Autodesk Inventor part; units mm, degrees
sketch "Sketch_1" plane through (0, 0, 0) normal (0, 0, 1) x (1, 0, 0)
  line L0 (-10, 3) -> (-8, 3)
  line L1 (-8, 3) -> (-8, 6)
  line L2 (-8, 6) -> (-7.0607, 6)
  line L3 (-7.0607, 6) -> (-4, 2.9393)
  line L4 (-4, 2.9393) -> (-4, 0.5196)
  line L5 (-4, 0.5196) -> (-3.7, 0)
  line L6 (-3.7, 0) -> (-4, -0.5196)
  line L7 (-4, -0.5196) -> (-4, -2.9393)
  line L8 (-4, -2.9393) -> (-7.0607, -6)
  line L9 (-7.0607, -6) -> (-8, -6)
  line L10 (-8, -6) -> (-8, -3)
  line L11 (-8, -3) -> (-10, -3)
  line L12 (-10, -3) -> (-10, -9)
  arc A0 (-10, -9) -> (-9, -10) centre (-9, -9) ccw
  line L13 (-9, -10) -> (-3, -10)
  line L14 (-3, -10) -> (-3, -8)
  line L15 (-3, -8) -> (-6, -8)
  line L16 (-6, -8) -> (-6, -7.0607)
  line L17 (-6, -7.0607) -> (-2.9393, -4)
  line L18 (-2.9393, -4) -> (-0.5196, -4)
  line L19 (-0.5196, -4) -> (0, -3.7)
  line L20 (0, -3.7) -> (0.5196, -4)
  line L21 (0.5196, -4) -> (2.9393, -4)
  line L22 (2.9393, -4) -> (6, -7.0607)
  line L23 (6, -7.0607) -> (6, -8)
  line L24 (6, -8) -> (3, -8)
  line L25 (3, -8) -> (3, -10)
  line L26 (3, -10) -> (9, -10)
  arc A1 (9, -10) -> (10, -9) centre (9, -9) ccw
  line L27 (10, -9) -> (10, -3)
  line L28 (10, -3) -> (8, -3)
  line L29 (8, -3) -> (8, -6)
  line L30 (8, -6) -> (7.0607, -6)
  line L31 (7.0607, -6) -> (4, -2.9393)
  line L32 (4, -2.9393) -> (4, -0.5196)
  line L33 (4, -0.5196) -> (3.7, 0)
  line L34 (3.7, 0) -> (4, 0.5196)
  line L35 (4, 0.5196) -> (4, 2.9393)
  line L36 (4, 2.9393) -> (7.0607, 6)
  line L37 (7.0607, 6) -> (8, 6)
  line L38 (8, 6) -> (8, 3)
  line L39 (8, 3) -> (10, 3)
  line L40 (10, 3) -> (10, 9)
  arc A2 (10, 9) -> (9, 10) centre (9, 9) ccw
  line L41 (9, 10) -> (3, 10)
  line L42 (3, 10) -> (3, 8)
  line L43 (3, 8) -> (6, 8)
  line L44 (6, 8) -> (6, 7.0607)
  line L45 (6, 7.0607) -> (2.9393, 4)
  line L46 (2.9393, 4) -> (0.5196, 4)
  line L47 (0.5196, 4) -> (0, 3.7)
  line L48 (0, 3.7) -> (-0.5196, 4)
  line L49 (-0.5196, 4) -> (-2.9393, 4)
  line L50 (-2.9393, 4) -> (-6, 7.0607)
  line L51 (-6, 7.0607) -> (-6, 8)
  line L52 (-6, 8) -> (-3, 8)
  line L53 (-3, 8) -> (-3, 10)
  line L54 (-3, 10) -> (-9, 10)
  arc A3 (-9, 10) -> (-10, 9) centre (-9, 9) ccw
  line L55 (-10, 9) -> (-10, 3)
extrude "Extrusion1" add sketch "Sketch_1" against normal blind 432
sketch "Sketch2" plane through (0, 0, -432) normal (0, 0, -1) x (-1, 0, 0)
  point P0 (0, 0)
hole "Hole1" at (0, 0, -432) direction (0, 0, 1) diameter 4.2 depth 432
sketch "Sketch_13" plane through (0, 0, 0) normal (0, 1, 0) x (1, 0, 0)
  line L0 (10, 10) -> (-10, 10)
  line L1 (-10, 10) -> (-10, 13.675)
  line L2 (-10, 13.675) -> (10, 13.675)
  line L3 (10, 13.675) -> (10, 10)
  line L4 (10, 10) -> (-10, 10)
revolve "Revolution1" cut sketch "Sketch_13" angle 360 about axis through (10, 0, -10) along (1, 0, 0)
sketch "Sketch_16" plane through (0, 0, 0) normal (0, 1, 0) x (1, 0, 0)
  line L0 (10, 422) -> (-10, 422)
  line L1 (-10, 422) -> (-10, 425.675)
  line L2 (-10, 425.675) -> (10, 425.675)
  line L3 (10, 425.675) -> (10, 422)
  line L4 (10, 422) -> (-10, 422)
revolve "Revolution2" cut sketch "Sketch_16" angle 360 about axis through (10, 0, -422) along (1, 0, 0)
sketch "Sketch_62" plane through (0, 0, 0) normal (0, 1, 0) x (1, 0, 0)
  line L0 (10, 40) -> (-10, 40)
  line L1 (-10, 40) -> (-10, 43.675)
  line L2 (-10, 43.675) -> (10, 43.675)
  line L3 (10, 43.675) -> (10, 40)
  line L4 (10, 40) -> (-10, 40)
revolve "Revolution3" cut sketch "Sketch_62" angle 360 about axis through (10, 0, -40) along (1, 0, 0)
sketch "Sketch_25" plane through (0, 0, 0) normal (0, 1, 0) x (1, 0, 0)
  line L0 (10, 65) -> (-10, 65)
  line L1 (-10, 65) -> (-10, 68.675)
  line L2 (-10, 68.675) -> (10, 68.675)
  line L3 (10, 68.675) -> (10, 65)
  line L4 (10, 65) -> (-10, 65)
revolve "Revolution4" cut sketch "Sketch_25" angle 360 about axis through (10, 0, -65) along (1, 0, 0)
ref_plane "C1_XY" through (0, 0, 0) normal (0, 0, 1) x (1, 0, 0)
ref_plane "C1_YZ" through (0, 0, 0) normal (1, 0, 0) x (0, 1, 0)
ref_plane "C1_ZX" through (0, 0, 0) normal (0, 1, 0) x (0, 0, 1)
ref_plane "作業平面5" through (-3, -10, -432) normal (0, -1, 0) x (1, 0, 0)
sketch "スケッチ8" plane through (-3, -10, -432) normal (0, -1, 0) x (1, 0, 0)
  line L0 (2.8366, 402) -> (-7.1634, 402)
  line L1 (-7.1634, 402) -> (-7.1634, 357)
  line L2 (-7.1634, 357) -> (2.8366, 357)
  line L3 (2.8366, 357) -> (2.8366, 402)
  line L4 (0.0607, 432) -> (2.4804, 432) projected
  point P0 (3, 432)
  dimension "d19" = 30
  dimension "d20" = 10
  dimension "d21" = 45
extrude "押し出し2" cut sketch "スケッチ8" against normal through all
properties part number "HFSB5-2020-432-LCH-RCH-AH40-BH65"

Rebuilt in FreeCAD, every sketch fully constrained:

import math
import FreeCAD as App
import Part
import Sketcher
Q = App.Units.Quantity


def add_polygon(sketch, points):
    """Adds a closed chain of lines whose ends are joined by coincident constraints."""
    first, n = sketch.GeometryCount, len(points)
    for a, b in zip(points, points[1:] + points[:1]):
        sketch.addGeometry(Part.LineSegment(App.Vector(*a, 0), App.Vector(*b, 0)), False)
    for i in range(n):
        sketch.addConstraint(Sketcher.Constraint("Coincident", first + i, 2, first + (i + 1) % n, 1))

doc = App.newDocument("Part")
body = doc.addObject("PartDesign::Body", "Body")

sketch1 = body.newObject("Sketcher::SketchObject", "Sketch")
sketch1.AttachmentSupport = (doc.getObject("XY_Plane"), [""])
sketch1.MapMode = "FlatFace"
sketch1.addGeometry([
    Part.LineSegment(App.Vector(-10, 9, 0), App.Vector(-10, 3, 0)),
    Part.LineSegment(App.Vector(-10, 3, 0), App.Vector(-8, 3, 0)),
    Part.LineSegment(App.Vector(-8, 3, 0), App.Vector(-8, 6, 0)),
    Part.LineSegment(App.Vector(-8, 6, 0), App.Vector(-7.1, 6, 0)),
    Part.LineSegment(App.Vector(-7.1, 6, 0), App.Vector(-4, 2.9, 0)),
    Part.LineSegment(App.Vector(-4, 2.9, 0), App.Vector(-4, 0.5, 0)),
    Part.LineSegment(App.Vector(-4, 0.5, 0), App.Vector(-3.7, 0, 0)),
    Part.LineSegment(App.Vector(-3.7, 0, 0), App.Vector(-4, -0.5, 0)),
    Part.LineSegment(App.Vector(-4, -0.5, 0), App.Vector(-4, -2.9, 0)),
    Part.LineSegment(App.Vector(-4, -2.9, 0), App.Vector(-7.1, -6, 0)),
    Part.LineSegment(App.Vector(-7.1, -6, 0), App.Vector(-8, -6, 0)),
    Part.LineSegment(App.Vector(-8, -6, 0), App.Vector(-8, -3, 0)),
    Part.LineSegment(App.Vector(-8, -3, 0), App.Vector(-10, -3, 0)),
    Part.LineSegment(App.Vector(-10, -3, 0), App.Vector(-10, -9, 0)),
    Part.ArcOfCircle(Part.Circle(App.Vector(-9, -9, 0), App.Vector(0, 0, 1), 1), math.radians(180), math.radians(270)),
    Part.LineSegment(App.Vector(-9, -10, 0), App.Vector(-3, -10, 0)),
    Part.LineSegment(App.Vector(-3, -10, 0), App.Vector(-3, -8, 0)),
    Part.LineSegment(App.Vector(-3, -8, 0), App.Vector(-6, -8, 0)),
    Part.LineSegment(App.Vector(-6, -8, 0), App.Vector(-6, -7.1, 0)),
    Part.LineSegment(App.Vector(-6, -7.1, 0), App.Vector(-2.9, -4, 0)),
    Part.LineSegment(App.Vector(-2.9, -4, 0), App.Vector(-0.5, -4, 0)),
    Part.LineSegment(App.Vector(-0.5, -4, 0), App.Vector(0, -3.7, 0)),
    Part.LineSegment(App.Vector(0, -3.7, 0), App.Vector(0.5, -4, 0)),
    Part.LineSegment(App.Vector(0.5, -4, 0), App.Vector(2.9, -4, 0)),
    Part.LineSegment(App.Vector(2.9, -4, 0), App.Vector(6, -7.1, 0)),
    Part.LineSegment(App.Vector(6, -7.1, 0), App.Vector(6, -8, 0)),
    Part.LineSegment(App.Vector(6, -8, 0), App.Vector(3, -8, 0)),
    Part.LineSegment(App.Vector(3, -8, 0), App.Vector(3, -10, 0)),
    Part.LineSegment(App.Vector(3, -10, 0), App.Vector(9, -10, 0)),
    Part.ArcOfCircle(Part.Circle(App.Vector(9, -9, 0), App.Vector(0, 0, 1), 1), math.radians(-90), math.radians(0)),
    Part.LineSegment(App.Vector(10, -9, 0), App.Vector(10, -3, 0)),
    Part.LineSegment(App.Vector(10, -3, 0), App.Vector(8, -3, 0)),
    Part.LineSegment(App.Vector(8, -3, 0), App.Vector(8, -6, 0)),
    Part.LineSegment(App.Vector(8, -6, 0), App.Vector(7.1, -6, 0)),
    Part.LineSegment(App.Vector(7.1, -6, 0), App.Vector(4, -2.9, 0)),
    Part.LineSegment(App.Vector(4, -2.9, 0), App.Vector(4, -0.5, 0)),
    Part.LineSegment(App.Vector(4, -0.5, 0), App.Vector(3.7, 0, 0)),
    Part.LineSegment(App.Vector(3.7, 0, 0), App.Vector(4, 0.5, 0)),
    Part.LineSegment(App.Vector(4, 0.5, 0), App.Vector(4, 2.9, 0)),
    Part.LineSegment(App.Vector(4, 2.9, 0), App.Vector(7.1, 6, 0)),
    Part.LineSegment(App.Vector(7.1, 6, 0), App.Vector(8, 6, 0)),
    Part.LineSegment(App.Vector(8, 6, 0), App.Vector(8, 3, 0)),
    Part.LineSegment(App.Vector(8, 3, 0), App.Vector(10, 3, 0)),
    Part.LineSegment(App.Vector(10, 3, 0), App.Vector(10, 9, 0)),
    Part.ArcOfCircle(Part.Circle(App.Vector(9, 9, 0), App.Vector(0, 0, 1), 1), math.radians(0), math.radians(90)),
    Part.LineSegment(App.Vector(9, 10, 0), App.Vector(3, 10, 0)),
    Part.LineSegment(App.Vector(3, 10, 0), App.Vector(3, 8, 0)),
    Part.LineSegment(App.Vector(3, 8, 0), App.Vector(6, 8, 0)),
    Part.LineSegment(App.Vector(6, 8, 0), App.Vector(6, 7.1, 0)),
    Part.LineSegment(App.Vector(6, 7.1, 0), App.Vector(2.9, 4, 0)),
    Part.LineSegment(App.Vector(2.9, 4, 0), App.Vector(0.5, 4, 0)),
    Part.LineSegment(App.Vector(0.5, 4, 0), App.Vector(0, 3.7, 0)),
    Part.LineSegment(App.Vector(0, 3.7, 0), App.Vector(-0.5, 4, 0)),
    Part.LineSegment(App.Vector(-0.5, 4, 0), App.Vector(-2.9, 4, 0)),
    Part.LineSegment(App.Vector(-2.9, 4, 0), App.Vector(-6, 7.1, 0)),
    Part.LineSegment(App.Vector(-6, 7.1, 0), App.Vector(-6, 8, 0)),
    Part.LineSegment(App.Vector(-6, 8, 0), App.Vector(-3, 8, 0)),
    Part.LineSegment(App.Vector(-3, 8, 0), App.Vector(-3, 10, 0)),
    Part.LineSegment(App.Vector(-3, 10, 0), App.Vector(-9, 10, 0)),
    Part.ArcOfCircle(Part.Circle(App.Vector(-9, 9, 0), App.Vector(0, 0, 1), 1), math.radians(90), math.radians(180)),
], False)
sketch1.addConstraint([
    Sketcher.Constraint("Coincident", 0, 2, 1, 1),
    Sketcher.Constraint("Coincident", 1, 2, 2, 1),
    Sketcher.Constraint("Coincident", 2, 2, 3, 1),
    Sketcher.Constraint("Coincident", 3, 2, 4, 1),
    Sketcher.Constraint("Coincident", 4, 2, 5, 1),
    Sketcher.Constraint("Coincident", 5, 2, 6, 1),
    Sketcher.Constraint("Coincident", 6, 2, 7, 1),
    Sketcher.Constraint("Coincident", 7, 2, 8, 1),
    Sketcher.Constraint("Coincident", 8, 2, 9, 1),
    Sketcher.Constraint("Coincident", 9, 2, 10, 1),
    Sketcher.Constraint("Coincident", 10, 2, 11, 1),
    Sketcher.Constraint("Coincident", 11, 2, 12, 1),
    Sketcher.Constraint("Coincident", 12, 2, 13, 1),
    Sketcher.Constraint("Tangent", 13, 2, 14, 1),
    Sketcher.Constraint("Tangent", 14, 2, 15, 1),
    Sketcher.Constraint("Coincident", 15, 2, 16, 1),
    Sketcher.Constraint("Coincident", 16, 2, 17, 1),
    Sketcher.Constraint("Coincident", 17, 2, 18, 1),
    Sketcher.Constraint("Coincident", 18, 2, 19, 1),
    Sketcher.Constraint("Coincident", 19, 2, 20, 1),
    Sketcher.Constraint("Coincident", 20, 2, 21, 1),
    Sketcher.Constraint("Coincident", 21, 2, 22, 1),
    Sketcher.Constraint("Coincident", 22, 2, 23, 1),
    Sketcher.Constraint("Coincident", 23, 2, 24, 1),
    Sketcher.Constraint("Coincident", 24, 2, 25, 1),
    Sketcher.Constraint("Coincident", 25, 2, 26, 1),
    Sketcher.Constraint("Coincident", 26, 2, 27, 1),
    Sketcher.Constraint("Coincident", 27, 2, 28, 1),
    Sketcher.Constraint("Tangent", 28, 2, 29, 1),
    Sketcher.Constraint("Tangent", 29, 2, 30, 1),
    Sketcher.Constraint("Coincident", 30, 2, 31, 1),
    Sketcher.Constraint("Coincident", 31, 2, 32, 1),
    Sketcher.Constraint("Coincident", 32, 2, 33, 1),
    Sketcher.Constraint("Coincident", 33, 2, 34, 1),
    Sketcher.Constraint("Coincident", 34, 2, 35, 1),
    Sketcher.Constraint("Coincident", 35, 2, 36, 1),
    Sketcher.Constraint("Coincident", 36, 2, 37, 1),
    Sketcher.Constraint("Coincident", 37, 2, 38, 1),
    Sketcher.Constraint("Coincident", 38, 2, 39, 1),
    Sketcher.Constraint("Coincident", 39, 2, 40, 1),
    Sketcher.Constraint("Coincident", 40, 2, 41, 1),
    Sketcher.Constraint("Coincident", 41, 2, 42, 1),
    Sketcher.Constraint("Coincident", 42, 2, 43, 1),
    Sketcher.Constraint("Tangent", 43, 2, 44, 1),
    Sketcher.Constraint("Tangent", 44, 2, 45, 1),
    Sketcher.Constraint("Coincident", 45, 2, 46, 1),
    Sketcher.Constraint("Coincident", 46, 2, 47, 1),
    Sketcher.Constraint("Coincident", 47, 2, 48, 1),
    Sketcher.Constraint("Coincident", 48, 2, 49, 1),
    Sketcher.Constraint("Coincident", 49, 2, 50, 1),
    Sketcher.Constraint("Coincident", 50, 2, 51, 1),
    Sketcher.Constraint("Coincident", 51, 2, 52, 1),
    Sketcher.Constraint("Coincident", 52, 2, 53, 1),
    Sketcher.Constraint("Coincident", 53, 2, 54, 1),
    Sketcher.Constraint("Coincident", 54, 2, 55, 1),
    Sketcher.Constraint("Coincident", 55, 2, 56, 1),
    Sketcher.Constraint("Coincident", 56, 2, 57, 1),
    Sketcher.Constraint("Coincident", 57, 2, 58, 1),
    Sketcher.Constraint("Tangent", 58, 2, 59, 1),
    Sketcher.Constraint("Tangent", 59, 2, 0, 1),
    Sketcher.Constraint("Vertical", 0),
    Sketcher.Constraint("Horizontal", 1),
    Sketcher.Constraint("Vertical", 2),
    Sketcher.Constraint("Horizontal", 3),
    Sketcher.Constraint("Vertical", 5),
    Sketcher.Constraint("Vertical", 8),
    Sketcher.Constraint("Horizontal", 10),
    Sketcher.Constraint("Vertical", 11),
    Sketcher.Constraint("Horizontal", 12),
    Sketcher.Constraint("Vertical", 13),
    Sketcher.Constraint("Horizontal", 15),
    Sketcher.Constraint("Vertical", 16),
    Sketcher.Constraint("Horizontal", 17),
    Sketcher.Constraint("Vertical", 18),
    Sketcher.Constraint("Horizontal", 20),
    Sketcher.Constraint("Horizontal", 23),
    Sketcher.Constraint("Vertical", 25),
    Sketcher.Constraint("Horizontal", 26),
    Sketcher.Constraint("Vertical", 27),
    Sketcher.Constraint("Horizontal", 28),
    Sketcher.Constraint("Vertical", 30),
    Sketcher.Constraint("Horizontal", 31),
    Sketcher.Constraint("Vertical", 32),
    Sketcher.Constraint("Horizontal", 33),
    Sketcher.Constraint("Vertical", 35),
    Sketcher.Constraint("Vertical", 38),
    Sketcher.Constraint("Horizontal", 40),
    Sketcher.Constraint("Vertical", 41),
    Sketcher.Constraint("Horizontal", 42),
    Sketcher.Constraint("Vertical", 43),
    Sketcher.Constraint("Horizontal", 45),
    Sketcher.Constraint("Vertical", 46),
    Sketcher.Constraint("Horizontal", 47),
    Sketcher.Constraint("Vertical", 48),
    Sketcher.Constraint("Horizontal", 50),
    Sketcher.Constraint("Horizontal", 53),
    Sketcher.Constraint("Vertical", 55),
    Sketcher.Constraint("Horizontal", 56),
    Sketcher.Constraint("Vertical", 57),
    Sketcher.Constraint("Horizontal", 58),
    Sketcher.Constraint("Equal", 14, 29),
    Sketcher.Constraint("Equal", 29, 44),
    Sketcher.Constraint("Equal", 44, 59),
    Sketcher.Constraint("Symmetric", 14, 3, 44, 3, -1, 1),
    Sketcher.Constraint("Symmetric", 29, 3, 59, 3, -1, 1),
    Sketcher.Constraint("Symmetric", 1, 2, 31, 2, -1, 1),
    Sketcher.Constraint("Symmetric", 3, 2, 33, 2, -1, 1),
    Sketcher.Constraint("Symmetric", 4, 2, 34, 2, -1, 1),
    Sketcher.Constraint("Symmetric", 6, 2, 36, 2, -1, 1),
    Sketcher.Constraint("Symmetric", 7, 2, 37, 2, -1, 1),
    Sketcher.Constraint("Symmetric", 9, 2, 39, 2, -1, 1),
    Sketcher.Constraint("Symmetric", 11, 2, 41, 2, -1, 1),
    Sketcher.Constraint("Symmetric", 16, 2, 46, 2, -1, 1),
    Sketcher.Constraint("Symmetric", 18, 2, 48, 2, -1, 1),
    Sketcher.Constraint("Symmetric", 19, 2, 49, 2, -1, 1),
    Sketcher.Constraint("Symmetric", 21, 2, 51, 2, -1, 1),
    Sketcher.Constraint("Symmetric", 22, 2, 52, 2, -1, 1),
    Sketcher.Constraint("Symmetric", 24, 2, 54, 2, -1, 1),
    Sketcher.Constraint("Symmetric", 26, 2, 56, 2, -1, 1),
    Sketcher.Constraint("Symmetric", 14, 3, 29, 3, -2),
    Sketcher.Constraint("Symmetric", 20, 2, 22, 2, -2),
    Sketcher.Constraint("Symmetric", 18, 2, 24, 2, -2),
    Sketcher.Constraint("Symmetric", 16, 2, 26, 2, -2),
    Sketcher.Constraint("Symmetric", 11, 2, 31, 2, -2),
    Sketcher.Constraint("Symmetric", 9, 2, 33, 2, -2),
    Sketcher.Constraint("Symmetric", 8, 2, 34, 2, -2),
    Sketcher.Constraint("PointOnObject", 6, 2, -1),
    Sketcher.Constraint("PointOnObject", 21, 2, -2),
    Sketcher.Constraint("Perpendicular", 4, 9),
    Sketcher.Constraint("Parallel", 9, 19),
    Sketcher.Constraint("Perpendicular", 6, 21),
    Sketcher.Constraint("Perpendicular", 7, 22),
    Sketcher.Constraint("Perpendicular", 19, 24),
    Sketcher.Constraint("Perpendicular", 21, 36),
    Sketcher.Constraint("Perpendicular", 34, 39),
    Sketcher.Constraint("Perpendicular", 36, 51),
    Sketcher.Constraint("Perpendicular", 49, 54),
    Sketcher.Constraint("Equal", 58, 0),
    Sketcher.Constraint("Equal", 56, 2),
    Sketcher.Constraint("Equal", 53, 5),
    Sketcher.Constraint("Equal", 42, 16),
    Sketcher.Constraint("Equal", 40, 18),
    Sketcher.Constraint("Equal", 9, 19),
    Sketcher.Constraint("Equal", 7, 21),
    Sketcher.Constraint("Radius", 14, 1.0),
    Sketcher.Constraint("DistanceX", 1, 1, 1, 2, 2.0),
    Sketcher.Constraint("DistanceX", 15, 1, 15, 2, 6.0),
    Sketcher.Constraint("DistanceX", 17, 2, 17, 1, 3.0),
    Sketcher.Constraint("Angle", 6, Q("-59.9993 deg")),
    Sketcher.Constraint("DistanceX", 14, 3, -1, 1, 9.0),
    Sketcher.Constraint("DistanceX", 4, 2, -1, 1, 4.0),
    Sketcher.Constraint("Distance", 6, 0.6),
    Sketcher.Constraint("DistanceX", 3, 1, 3, 2, 0.9393),
])
pad1 = body.newObject("PartDesign::Pad", "Pad")
pad1.Profile = sketch1
pad1.Length = 432
pad1.Reversed = True

sketch2 = body.newObject("Sketcher::SketchObject", "Sketch001")
sketch2.AttachmentSupport = (doc.getObject("XY_Plane"), [""])
sketch2.MapMode = "FlatFace"
sketch2.AttachmentOffset = App.Placement(App.Vector(0, 0, -432), App.Rotation())
sketch2.addGeometry(Part.Circle(App.Vector(0, 0, 0), App.Vector(0, 0, 1), 2.1), False)
sketch2.addConstraint([
    Sketcher.Constraint("Coincident", 0, 3, -1, 1),
    Sketcher.Constraint("Diameter", 0, 4.2),
])
doc.recompute()
hole = body.newObject("PartDesign::Hole", "Hole")
hole.Profile = sketch2
hole.ThreadType = "None"
hole.Diameter = 4.2
hole.DepthType = "Dimension"
hole.Depth = 432
hole.DrillPoint = "Flat"
hole.Reversed = True

sketch3 = body.newObject("Sketcher::SketchObject", "Sketch002")
sketch3.AttachmentSupport = (doc.getObject("XZ_Plane"), [""])
sketch3.MapMode = "FlatFace"
add_polygon(sketch3, [(-10, -10), (10, -10), (10, -13.7), (-10, -13.7)])
sketch3.addGeometry(Part.LineSegment(App.Vector(-10, -10, 0), App.Vector(10, -10, 0)), True)
sketch3.addConstraint([
    Sketcher.Constraint("Horizontal", 0),
    Sketcher.Constraint("Vertical", 1),
    Sketcher.Constraint("Horizontal", 2),
    Sketcher.Constraint("Vertical", 3),
    Sketcher.Constraint("Horizontal", 4),
    Sketcher.Constraint("Coincident", 4, 1, 3, 2),
    Sketcher.Constraint("Vertical", 1, 2, 4, 2),
    Sketcher.Constraint("DistanceX", 0, 1, 0, 2, 20.0),
    Sketcher.Constraint("DistanceX", -1, 1, 0, 2, 10.0),
    Sketcher.Constraint("DistanceY", 0, 2, -1, 1, 10.0),
    Sketcher.Constraint("DistanceY", 1, 2, 1, 1, 3.675),
])
groove = body.newObject("PartDesign::Groove", "Groove")
groove.Profile = sketch3
groove.ReferenceAxis = (sketch3, ["Axis0"])
groove.Angle = 360

sketch4 = body.newObject("Sketcher::SketchObject", "Sketch003")
sketch4.AttachmentSupport = (doc.getObject("XZ_Plane"), [""])
sketch4.MapMode = "FlatFace"
add_polygon(sketch4, [(-10, -422), (10, -422), (10, -425.7), (-10, -425.7)])
sketch4.addGeometry(Part.LineSegment(App.Vector(-10, -422, 0), App.Vector(10, -422, 0)), True)
sketch4.addConstraint([
    Sketcher.Constraint("Horizontal", 0),
    Sketcher.Constraint("Vertical", 1),
    Sketcher.Constraint("Horizontal", 2),
    Sketcher.Constraint("Vertical", 3),
    Sketcher.Constraint("Horizontal", 4),
    Sketcher.Constraint("Coincident", 4, 1, 3, 2),
    Sketcher.Constraint("Vertical", 1, 2, 4, 2),
    Sketcher.Constraint("DistanceX", 0, 1, 0, 2, 20.0),
    Sketcher.Constraint("DistanceX", -1, 1, 0, 2, 10.0),
    Sketcher.Constraint("DistanceY", 0, 2, -1, 1, 422.0),
    Sketcher.Constraint("DistanceY", 1, 2, 1, 1, 3.675),
])
groove2 = body.newObject("PartDesign::Groove", "Groove001")
groove2.Profile = sketch4
groove2.ReferenceAxis = (sketch4, ["Axis0"])
groove2.Angle = 360

sketch5 = body.newObject("Sketcher::SketchObject", "Sketch004")
sketch5.AttachmentSupport = (doc.getObject("XZ_Plane"), [""])
sketch5.MapMode = "FlatFace"
add_polygon(sketch5, [(-10, -40), (10, -40), (10, -43.7), (-10, -43.7)])
sketch5.addGeometry(Part.LineSegment(App.Vector(-10, -40, 0), App.Vector(10, -40, 0)), True)
sketch5.addConstraint([
    Sketcher.Constraint("Horizontal", 0),
    Sketcher.Constraint("Vertical", 1),
    Sketcher.Constraint("Horizontal", 2),
    Sketcher.Constraint("Vertical", 3),
    Sketcher.Constraint("Horizontal", 4),
    Sketcher.Constraint("Coincident", 4, 1, 3, 2),
    Sketcher.Constraint("Vertical", 1, 2, 4, 2),
    Sketcher.Constraint("DistanceX", 0, 1, 0, 2, 20.0),
    Sketcher.Constraint("DistanceX", -1, 1, 0, 2, 10.0),
    Sketcher.Constraint("DistanceY", 0, 2, -1, 1, 40.0),
    Sketcher.Constraint("DistanceY", 1, 2, 1, 1, 3.675),
])
groove3 = body.newObject("PartDesign::Groove", "Groove002")
groove3.Profile = sketch5
groove3.ReferenceAxis = (sketch5, ["Axis0"])
groove3.Angle = 360

sketch6 = body.newObject("Sketcher::SketchObject", "Sketch005")
sketch6.AttachmentSupport = (doc.getObject("XZ_Plane"), [""])
sketch6.MapMode = "FlatFace"
add_polygon(sketch6, [(-10, -65), (10, -65), (10, -68.7), (-10, -68.7)])
sketch6.addGeometry(Part.LineSegment(App.Vector(-10, -65, 0), App.Vector(10, -65, 0)), True)
sketch6.addConstraint([
    Sketcher.Constraint("Horizontal", 0),
    Sketcher.Constraint("Vertical", 1),
    Sketcher.Constraint("Horizontal", 2),
    Sketcher.Constraint("Vertical", 3),
    Sketcher.Constraint("Horizontal", 4),
    Sketcher.Constraint("Coincident", 4, 1, 3, 2),
    Sketcher.Constraint("Vertical", 1, 2, 4, 2),
    Sketcher.Constraint("DistanceX", 0, 1, 0, 2, 20.0),
    Sketcher.Constraint("DistanceX", -1, 1, 0, 2, 10.0),
    Sketcher.Constraint("DistanceY", 0, 2, -1, 1, 65.0),
    Sketcher.Constraint("DistanceY", 1, 2, 1, 1, 3.675),
])
groove4 = body.newObject("PartDesign::Groove", "Groove003")
groove4.Profile = sketch6
groove4.ReferenceAxis = (sketch6, ["Axis0"])
groove4.Angle = 360

sketch7 = body.newObject("Sketcher::SketchObject", "Sketch006")
sketch7.AttachmentSupport = (doc.getObject("XZ_Plane"), [""])
sketch7.MapMode = "FlatFace"
sketch7.AttachmentOffset = App.Placement(App.Vector(0, 0, 10), App.Rotation())
add_polygon(sketch7, [(0, -75), (0, -30), (-10, -30), (-10, -75)])
sketch7.addConstraint([
    Sketcher.Constraint("Vertical", 0),
    Sketcher.Constraint("Horizontal", 1),
    Sketcher.Constraint("Vertical", 2),
    Sketcher.Constraint("Horizontal", 3),
    Sketcher.Constraint("DistanceX", 1, 2, 1, 1, 10.0),
    Sketcher.Constraint("DistanceY", 0, 1, 0, 2, 45.0),
    Sketcher.Constraint("DistanceY", 0, 2, -1, 1, 30.0),
    Sketcher.Constraint("DistanceX", 0, 2, -1, 1, 0.1634),
])
pocket1 = body.newObject("PartDesign::Pocket", "Pocket")
pocket1.Profile = sketch7
pocket1.Type = "ThroughAll"

doc.recompute()
